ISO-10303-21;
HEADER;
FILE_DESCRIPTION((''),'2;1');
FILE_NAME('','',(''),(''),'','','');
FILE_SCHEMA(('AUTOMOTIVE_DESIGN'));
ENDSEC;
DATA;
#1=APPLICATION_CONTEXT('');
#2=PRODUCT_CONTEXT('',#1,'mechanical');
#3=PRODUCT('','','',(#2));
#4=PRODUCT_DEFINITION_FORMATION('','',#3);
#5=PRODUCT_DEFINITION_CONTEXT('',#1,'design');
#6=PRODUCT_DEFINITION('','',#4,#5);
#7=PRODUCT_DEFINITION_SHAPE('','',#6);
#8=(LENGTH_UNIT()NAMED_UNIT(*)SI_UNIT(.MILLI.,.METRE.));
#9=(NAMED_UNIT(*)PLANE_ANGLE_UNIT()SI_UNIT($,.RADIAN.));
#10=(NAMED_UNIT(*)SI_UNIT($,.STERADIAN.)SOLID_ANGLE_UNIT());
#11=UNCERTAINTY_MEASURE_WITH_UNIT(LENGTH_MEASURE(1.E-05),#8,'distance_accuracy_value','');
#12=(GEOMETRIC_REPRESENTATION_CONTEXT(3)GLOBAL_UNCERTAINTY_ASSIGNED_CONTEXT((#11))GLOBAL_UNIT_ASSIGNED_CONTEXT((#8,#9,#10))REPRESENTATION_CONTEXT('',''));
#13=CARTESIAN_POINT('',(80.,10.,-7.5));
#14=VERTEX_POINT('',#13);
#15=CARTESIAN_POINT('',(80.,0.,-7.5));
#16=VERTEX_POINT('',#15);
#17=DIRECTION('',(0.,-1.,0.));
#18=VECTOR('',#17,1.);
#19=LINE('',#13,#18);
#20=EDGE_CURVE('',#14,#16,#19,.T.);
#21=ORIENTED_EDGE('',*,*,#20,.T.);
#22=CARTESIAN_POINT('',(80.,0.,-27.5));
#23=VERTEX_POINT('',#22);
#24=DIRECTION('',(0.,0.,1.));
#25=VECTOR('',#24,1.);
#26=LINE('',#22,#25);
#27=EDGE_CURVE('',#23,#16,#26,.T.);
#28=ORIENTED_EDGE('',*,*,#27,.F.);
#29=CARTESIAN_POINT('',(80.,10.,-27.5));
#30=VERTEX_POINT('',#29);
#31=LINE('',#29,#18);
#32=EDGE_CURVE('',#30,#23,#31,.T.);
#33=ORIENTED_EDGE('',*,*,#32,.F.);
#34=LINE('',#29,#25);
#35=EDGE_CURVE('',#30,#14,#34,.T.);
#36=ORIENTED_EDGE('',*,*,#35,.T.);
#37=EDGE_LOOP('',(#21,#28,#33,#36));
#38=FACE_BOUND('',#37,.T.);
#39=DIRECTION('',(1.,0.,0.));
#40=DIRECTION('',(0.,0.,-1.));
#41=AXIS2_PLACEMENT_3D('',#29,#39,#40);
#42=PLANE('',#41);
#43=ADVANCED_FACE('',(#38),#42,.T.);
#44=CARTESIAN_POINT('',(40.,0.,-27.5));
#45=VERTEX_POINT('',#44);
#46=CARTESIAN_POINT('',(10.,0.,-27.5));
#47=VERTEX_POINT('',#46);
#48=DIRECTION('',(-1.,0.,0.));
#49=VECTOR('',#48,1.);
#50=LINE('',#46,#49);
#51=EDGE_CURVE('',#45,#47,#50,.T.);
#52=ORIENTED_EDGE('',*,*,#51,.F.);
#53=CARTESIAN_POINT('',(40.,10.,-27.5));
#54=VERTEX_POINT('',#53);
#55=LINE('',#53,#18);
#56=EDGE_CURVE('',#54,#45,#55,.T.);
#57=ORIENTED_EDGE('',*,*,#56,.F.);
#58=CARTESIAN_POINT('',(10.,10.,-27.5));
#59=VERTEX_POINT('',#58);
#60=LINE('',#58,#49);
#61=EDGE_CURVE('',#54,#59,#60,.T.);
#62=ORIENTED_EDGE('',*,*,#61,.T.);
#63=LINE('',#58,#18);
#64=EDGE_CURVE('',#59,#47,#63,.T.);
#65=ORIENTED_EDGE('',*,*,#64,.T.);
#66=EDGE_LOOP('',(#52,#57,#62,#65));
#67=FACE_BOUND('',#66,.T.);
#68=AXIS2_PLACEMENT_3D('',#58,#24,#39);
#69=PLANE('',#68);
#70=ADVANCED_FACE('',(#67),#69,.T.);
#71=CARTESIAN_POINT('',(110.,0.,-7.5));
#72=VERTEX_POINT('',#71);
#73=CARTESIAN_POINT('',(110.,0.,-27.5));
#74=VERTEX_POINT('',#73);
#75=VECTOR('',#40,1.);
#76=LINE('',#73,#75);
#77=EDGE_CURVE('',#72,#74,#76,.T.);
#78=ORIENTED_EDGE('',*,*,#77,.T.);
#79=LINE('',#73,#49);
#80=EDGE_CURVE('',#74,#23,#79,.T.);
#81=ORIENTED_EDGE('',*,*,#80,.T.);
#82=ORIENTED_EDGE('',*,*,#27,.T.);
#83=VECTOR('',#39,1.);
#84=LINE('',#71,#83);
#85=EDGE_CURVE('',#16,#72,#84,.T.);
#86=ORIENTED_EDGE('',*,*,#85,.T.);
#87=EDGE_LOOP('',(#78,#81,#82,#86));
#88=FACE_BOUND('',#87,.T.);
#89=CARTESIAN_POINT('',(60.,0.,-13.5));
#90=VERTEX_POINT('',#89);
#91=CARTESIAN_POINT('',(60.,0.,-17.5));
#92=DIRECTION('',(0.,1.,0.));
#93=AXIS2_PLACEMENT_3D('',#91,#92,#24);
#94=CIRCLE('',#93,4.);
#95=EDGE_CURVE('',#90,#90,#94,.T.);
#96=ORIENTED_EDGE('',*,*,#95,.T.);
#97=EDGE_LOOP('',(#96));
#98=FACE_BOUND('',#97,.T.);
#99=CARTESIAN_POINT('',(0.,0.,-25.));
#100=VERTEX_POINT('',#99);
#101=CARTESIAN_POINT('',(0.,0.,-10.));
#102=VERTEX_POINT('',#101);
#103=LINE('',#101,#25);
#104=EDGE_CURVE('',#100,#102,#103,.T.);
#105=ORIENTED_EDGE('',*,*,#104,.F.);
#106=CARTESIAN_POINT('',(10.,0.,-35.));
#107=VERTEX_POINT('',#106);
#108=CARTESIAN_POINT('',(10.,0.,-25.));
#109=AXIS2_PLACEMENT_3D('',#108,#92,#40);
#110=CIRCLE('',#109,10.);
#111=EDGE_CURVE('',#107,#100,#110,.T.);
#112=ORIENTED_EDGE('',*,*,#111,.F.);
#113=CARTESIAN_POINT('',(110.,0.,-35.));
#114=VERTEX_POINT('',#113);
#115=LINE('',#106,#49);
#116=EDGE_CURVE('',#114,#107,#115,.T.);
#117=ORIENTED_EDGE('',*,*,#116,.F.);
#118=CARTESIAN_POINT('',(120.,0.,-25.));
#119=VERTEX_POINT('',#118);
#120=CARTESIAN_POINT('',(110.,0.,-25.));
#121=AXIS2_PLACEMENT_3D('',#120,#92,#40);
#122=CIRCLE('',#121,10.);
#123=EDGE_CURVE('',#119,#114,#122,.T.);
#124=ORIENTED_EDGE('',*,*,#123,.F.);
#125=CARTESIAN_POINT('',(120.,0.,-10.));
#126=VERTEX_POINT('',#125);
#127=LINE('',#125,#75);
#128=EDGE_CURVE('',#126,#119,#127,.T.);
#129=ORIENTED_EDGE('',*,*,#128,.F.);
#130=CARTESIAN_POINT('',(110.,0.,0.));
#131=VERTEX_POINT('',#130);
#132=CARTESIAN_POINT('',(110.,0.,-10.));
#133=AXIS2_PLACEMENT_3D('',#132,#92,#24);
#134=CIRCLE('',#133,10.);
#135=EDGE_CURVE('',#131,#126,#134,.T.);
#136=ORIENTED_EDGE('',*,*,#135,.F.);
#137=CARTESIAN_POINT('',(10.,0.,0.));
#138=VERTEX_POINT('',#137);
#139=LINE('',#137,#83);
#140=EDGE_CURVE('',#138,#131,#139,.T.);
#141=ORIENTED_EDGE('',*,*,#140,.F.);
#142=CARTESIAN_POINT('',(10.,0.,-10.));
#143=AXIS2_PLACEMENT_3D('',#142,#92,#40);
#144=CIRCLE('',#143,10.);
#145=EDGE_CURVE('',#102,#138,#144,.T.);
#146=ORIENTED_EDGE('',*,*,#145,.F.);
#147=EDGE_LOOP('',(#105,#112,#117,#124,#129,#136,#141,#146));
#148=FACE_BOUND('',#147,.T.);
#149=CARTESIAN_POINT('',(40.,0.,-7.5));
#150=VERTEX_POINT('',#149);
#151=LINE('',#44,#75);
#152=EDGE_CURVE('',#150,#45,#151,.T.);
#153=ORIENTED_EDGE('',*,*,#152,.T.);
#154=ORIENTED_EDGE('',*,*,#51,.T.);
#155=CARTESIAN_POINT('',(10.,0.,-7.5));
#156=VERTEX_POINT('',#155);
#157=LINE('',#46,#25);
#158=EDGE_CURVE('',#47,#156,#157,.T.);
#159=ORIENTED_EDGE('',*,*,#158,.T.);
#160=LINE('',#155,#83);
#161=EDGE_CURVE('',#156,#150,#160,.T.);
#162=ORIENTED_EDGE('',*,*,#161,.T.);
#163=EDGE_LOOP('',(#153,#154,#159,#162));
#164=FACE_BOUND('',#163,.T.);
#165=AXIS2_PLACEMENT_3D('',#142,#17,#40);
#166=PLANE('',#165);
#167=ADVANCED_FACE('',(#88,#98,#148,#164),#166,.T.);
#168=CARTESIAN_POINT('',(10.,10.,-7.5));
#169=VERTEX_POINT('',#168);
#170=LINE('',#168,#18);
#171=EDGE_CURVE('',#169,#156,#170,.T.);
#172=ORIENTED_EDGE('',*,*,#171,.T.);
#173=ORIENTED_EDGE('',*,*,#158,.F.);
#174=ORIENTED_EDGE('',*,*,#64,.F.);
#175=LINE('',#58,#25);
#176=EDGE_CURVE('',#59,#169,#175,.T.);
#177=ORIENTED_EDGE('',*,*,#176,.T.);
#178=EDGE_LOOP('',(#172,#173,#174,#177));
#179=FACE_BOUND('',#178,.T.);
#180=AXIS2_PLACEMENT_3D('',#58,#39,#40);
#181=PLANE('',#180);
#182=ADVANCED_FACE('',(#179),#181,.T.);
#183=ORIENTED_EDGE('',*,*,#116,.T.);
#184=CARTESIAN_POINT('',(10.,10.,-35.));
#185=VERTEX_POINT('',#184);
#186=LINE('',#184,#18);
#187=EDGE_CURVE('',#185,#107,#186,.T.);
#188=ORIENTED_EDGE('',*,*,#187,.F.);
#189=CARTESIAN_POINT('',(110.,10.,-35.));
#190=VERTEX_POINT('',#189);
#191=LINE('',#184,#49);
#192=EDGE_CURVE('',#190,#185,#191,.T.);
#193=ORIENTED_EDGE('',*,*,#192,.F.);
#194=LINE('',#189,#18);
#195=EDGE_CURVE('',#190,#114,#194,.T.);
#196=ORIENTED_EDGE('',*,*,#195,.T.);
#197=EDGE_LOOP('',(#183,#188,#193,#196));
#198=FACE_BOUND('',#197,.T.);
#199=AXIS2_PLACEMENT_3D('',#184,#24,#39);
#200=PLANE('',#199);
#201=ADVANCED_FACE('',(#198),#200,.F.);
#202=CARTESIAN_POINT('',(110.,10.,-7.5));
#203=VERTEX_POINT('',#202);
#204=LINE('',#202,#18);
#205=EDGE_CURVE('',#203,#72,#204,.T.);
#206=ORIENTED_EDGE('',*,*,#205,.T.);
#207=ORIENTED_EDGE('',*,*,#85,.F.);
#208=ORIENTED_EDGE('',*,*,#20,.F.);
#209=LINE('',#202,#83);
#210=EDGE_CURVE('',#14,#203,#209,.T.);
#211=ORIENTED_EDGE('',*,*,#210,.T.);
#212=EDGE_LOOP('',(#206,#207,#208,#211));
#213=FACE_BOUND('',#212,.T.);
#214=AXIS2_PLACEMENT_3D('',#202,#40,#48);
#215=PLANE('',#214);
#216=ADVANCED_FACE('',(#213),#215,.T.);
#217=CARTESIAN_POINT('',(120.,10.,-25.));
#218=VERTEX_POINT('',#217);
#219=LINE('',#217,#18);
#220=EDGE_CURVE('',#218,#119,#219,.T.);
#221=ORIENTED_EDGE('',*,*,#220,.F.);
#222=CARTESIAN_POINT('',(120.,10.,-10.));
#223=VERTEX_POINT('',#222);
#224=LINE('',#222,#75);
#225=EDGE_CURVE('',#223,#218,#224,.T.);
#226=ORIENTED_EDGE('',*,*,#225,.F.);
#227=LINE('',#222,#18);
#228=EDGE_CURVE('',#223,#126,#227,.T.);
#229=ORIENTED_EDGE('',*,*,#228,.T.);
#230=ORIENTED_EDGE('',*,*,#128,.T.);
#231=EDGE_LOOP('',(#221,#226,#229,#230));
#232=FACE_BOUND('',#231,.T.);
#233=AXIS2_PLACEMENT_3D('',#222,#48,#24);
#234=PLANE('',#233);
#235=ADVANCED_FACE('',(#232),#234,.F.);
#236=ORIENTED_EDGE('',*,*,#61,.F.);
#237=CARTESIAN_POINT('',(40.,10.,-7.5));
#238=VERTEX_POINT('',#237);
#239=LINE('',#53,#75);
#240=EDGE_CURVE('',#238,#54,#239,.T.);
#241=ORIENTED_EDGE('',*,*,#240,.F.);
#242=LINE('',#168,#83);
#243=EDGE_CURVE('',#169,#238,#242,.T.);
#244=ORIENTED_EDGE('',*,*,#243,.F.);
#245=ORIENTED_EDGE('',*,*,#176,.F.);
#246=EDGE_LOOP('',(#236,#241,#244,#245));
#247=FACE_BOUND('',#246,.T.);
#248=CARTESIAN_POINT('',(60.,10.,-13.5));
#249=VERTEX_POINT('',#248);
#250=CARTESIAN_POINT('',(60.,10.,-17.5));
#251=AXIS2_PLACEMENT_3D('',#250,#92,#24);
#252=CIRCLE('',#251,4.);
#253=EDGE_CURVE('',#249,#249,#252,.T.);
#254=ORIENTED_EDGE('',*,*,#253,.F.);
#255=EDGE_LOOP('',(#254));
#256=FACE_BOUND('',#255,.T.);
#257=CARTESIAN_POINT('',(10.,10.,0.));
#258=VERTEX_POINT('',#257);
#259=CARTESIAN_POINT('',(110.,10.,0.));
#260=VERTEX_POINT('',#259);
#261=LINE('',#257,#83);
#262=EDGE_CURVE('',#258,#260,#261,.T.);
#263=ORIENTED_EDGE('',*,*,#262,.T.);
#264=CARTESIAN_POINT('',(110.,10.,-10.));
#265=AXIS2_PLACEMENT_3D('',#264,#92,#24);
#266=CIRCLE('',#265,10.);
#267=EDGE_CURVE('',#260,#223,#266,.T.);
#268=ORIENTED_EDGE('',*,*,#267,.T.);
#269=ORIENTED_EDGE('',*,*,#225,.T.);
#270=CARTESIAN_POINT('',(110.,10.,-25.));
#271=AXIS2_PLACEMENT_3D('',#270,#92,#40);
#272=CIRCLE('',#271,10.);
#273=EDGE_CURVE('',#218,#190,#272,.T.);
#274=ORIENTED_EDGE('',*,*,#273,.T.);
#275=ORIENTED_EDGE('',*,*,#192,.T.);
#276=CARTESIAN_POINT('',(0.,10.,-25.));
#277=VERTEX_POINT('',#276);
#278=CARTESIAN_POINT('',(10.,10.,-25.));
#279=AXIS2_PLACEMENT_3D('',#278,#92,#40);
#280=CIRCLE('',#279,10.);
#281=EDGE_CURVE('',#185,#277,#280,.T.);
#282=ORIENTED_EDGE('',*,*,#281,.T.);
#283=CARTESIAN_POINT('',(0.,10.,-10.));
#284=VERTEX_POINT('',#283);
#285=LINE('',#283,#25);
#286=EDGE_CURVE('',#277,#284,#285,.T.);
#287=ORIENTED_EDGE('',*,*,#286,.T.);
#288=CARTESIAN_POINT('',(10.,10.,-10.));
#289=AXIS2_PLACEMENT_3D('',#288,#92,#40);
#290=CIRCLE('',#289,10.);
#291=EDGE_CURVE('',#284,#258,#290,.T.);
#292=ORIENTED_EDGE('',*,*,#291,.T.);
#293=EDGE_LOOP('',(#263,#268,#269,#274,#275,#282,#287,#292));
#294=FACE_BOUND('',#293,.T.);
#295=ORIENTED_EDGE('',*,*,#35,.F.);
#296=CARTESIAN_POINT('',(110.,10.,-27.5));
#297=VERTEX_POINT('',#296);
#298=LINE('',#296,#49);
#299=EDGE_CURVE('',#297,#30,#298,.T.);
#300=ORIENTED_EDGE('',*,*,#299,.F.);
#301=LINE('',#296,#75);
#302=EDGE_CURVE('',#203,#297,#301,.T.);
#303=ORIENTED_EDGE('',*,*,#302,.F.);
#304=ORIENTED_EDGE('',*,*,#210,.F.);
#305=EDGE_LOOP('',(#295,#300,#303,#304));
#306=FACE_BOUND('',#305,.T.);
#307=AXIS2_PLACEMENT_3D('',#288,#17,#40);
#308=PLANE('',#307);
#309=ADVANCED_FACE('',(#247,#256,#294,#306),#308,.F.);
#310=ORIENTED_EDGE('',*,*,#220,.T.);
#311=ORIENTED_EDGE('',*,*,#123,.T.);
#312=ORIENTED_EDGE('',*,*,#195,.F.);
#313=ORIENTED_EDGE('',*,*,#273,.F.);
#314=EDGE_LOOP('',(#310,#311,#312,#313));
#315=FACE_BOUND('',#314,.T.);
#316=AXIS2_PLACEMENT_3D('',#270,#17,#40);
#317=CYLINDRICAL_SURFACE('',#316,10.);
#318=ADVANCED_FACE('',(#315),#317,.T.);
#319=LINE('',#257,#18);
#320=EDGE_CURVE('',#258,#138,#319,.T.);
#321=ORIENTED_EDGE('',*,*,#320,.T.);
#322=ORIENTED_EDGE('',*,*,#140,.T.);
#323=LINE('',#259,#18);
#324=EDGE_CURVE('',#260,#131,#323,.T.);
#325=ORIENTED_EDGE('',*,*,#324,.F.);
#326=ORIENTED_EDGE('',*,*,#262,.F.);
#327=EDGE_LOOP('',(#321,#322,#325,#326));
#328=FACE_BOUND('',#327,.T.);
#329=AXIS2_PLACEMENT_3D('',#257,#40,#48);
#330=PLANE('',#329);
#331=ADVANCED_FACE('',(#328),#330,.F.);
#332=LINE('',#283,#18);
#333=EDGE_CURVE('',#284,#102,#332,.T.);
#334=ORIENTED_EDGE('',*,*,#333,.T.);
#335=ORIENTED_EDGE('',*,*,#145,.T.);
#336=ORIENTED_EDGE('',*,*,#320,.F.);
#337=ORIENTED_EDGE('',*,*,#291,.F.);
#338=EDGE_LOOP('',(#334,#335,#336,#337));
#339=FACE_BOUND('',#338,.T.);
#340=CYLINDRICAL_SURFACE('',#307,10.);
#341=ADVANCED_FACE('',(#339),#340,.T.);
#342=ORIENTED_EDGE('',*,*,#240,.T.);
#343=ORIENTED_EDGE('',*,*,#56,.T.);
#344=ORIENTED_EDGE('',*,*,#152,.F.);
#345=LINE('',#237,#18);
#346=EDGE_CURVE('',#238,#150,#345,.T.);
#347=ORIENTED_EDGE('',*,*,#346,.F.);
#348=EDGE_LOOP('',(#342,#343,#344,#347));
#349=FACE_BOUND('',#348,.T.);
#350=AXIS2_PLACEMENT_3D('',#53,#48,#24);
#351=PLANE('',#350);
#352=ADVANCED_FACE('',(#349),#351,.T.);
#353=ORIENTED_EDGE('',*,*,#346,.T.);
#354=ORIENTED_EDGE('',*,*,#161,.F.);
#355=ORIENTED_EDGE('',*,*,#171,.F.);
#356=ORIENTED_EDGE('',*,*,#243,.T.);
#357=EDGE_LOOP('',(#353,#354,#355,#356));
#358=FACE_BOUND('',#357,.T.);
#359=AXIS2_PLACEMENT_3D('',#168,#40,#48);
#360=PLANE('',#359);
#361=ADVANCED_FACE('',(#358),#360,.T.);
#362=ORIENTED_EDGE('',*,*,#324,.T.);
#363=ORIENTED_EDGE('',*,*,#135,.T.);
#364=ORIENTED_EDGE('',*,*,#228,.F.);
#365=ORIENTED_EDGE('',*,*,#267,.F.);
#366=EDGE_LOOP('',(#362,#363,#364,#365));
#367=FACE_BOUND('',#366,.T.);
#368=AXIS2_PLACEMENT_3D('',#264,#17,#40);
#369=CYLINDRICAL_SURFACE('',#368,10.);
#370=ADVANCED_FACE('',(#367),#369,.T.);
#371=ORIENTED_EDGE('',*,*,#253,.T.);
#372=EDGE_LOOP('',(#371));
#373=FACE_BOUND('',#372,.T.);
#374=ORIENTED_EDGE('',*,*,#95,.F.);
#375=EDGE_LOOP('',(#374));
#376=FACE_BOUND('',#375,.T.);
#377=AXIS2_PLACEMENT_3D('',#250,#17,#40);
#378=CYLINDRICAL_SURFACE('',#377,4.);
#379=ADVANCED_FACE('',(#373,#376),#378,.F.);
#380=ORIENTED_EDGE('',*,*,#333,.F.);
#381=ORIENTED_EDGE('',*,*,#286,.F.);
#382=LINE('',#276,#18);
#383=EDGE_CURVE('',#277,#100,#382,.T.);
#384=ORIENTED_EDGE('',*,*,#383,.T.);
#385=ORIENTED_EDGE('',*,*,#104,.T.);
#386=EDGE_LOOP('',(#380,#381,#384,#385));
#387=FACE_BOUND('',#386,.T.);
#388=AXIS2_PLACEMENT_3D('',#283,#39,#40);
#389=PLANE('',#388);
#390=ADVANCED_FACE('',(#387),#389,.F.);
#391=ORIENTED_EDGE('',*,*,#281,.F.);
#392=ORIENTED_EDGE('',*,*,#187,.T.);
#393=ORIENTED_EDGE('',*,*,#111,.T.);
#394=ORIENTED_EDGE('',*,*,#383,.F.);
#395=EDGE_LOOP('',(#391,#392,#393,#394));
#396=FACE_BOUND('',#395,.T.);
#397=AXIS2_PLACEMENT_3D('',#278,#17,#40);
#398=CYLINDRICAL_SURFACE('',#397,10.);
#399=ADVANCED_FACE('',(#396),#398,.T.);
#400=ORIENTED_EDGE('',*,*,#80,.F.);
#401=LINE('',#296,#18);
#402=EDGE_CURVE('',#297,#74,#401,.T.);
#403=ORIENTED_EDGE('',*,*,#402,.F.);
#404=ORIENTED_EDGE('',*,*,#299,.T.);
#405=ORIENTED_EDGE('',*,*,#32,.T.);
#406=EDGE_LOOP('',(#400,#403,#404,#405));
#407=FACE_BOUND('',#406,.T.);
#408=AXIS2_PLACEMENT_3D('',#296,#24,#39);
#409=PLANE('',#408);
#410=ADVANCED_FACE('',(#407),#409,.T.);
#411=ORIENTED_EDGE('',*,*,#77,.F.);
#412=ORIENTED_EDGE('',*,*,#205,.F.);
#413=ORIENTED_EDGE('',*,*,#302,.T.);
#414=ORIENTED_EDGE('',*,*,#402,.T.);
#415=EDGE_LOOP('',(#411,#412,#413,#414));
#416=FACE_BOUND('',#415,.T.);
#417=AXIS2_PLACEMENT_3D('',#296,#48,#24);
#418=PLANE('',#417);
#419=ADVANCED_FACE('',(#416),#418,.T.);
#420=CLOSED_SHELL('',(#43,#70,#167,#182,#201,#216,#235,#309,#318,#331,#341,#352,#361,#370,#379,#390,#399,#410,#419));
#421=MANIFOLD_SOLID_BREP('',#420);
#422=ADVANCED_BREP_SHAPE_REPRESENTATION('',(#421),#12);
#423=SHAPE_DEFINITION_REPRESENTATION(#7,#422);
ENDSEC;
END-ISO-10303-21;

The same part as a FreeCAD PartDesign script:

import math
import FreeCAD as App
import Part
import Sketcher
Q = App.Units.Quantity

doc = App.newDocument("Part")
body = doc.addObject("PartDesign::Body", "Body")

# Sketch on XZ plane
sketch1 = body.newObject("Sketcher::SketchObject", "Sketch")
sketch1.AttachmentSupport = (doc.getObject("XZ_Plane"), [""])
sketch1.MapMode = "FlatFace"
sketch1.addGeometry([
    Part.LineSegment(App.Vector(10, 0, 0), App.Vector(110, 0, 0)),  # 0
    Part.ArcOfCircle(Part.Circle(App.Vector(110, -10, 0), App.Vector(0, 0, 1), 10), math.radians(0), math.radians(90)),  # 1
    Part.LineSegment(App.Vector(120, -10, 0), App.Vector(120, -25, 0)),  # 2
    Part.ArcOfCircle(Part.Circle(App.Vector(110, -25, 0), App.Vector(0, 0, 1), 10), math.radians(-90), math.radians(0)),  # 3
    Part.LineSegment(App.Vector(110, -35, 0), App.Vector(10, -35, 0)),  # 4
    Part.ArcOfCircle(Part.Circle(App.Vector(10, -25, 0), App.Vector(0, 0, 1), 10), math.radians(180), math.radians(270)),  # 5
    Part.LineSegment(App.Vector(0, -25, 0), App.Vector(0, -10, 0)),  # 6
    Part.ArcOfCircle(Part.Circle(App.Vector(10, -10, 0), App.Vector(0, 0, 1), 10), math.radians(90), math.radians(180)),  # 7
    Part.LineSegment(App.Vector(40, -7.5, 0), App.Vector(10, -7.5, 0)),  # 8
    Part.LineSegment(App.Vector(10, -7.5, 0), App.Vector(10, -27.5, 0)),  # 9
    Part.LineSegment(App.Vector(10, -27.5, 0), App.Vector(40, -27.5, 0)),  # 10
    Part.LineSegment(App.Vector(40, -27.5, 0), App.Vector(40, -7.5, 0)),  # 11
    Part.Circle(App.Vector(60, -17.5, 0), App.Vector(0, 0, 1), 4),  # 12
    Part.LineSegment(App.Vector(110, -7.5, 0), App.Vector(80, -7.5, 0)),  # 13
    Part.LineSegment(App.Vector(80, -7.5, 0), App.Vector(80, -27.5, 0)),  # 14
    Part.LineSegment(App.Vector(80, -27.5, 0), App.Vector(110, -27.5, 0)),  # 15
    Part.LineSegment(App.Vector(110, -27.5, 0), App.Vector(110, -7.5, 0)),  # 16
], False)
sketch1.addConstraint([
    Sketcher.Constraint("Tangent", 0, 2, 1, 2),
    Sketcher.Constraint("Tangent", 1, 1, 2, 1),
    Sketcher.Constraint("Tangent", 2, 2, 3, 2),
    Sketcher.Constraint("Tangent", 3, 1, 4, 1),
    Sketcher.Constraint("Tangent", 4, 2, 5, 2),
    Sketcher.Constraint("Tangent", 5, 1, 6, 1),
    Sketcher.Constraint("Tangent", 6, 2, 7, 2),
    Sketcher.Constraint("Tangent", 7, 1, 0, 1),
    Sketcher.Constraint("Coincident", 8, 2, 9, 1),
    Sketcher.Constraint("Coincident", 9, 2, 10, 1),
    Sketcher.Constraint("Coincident", 10, 2, 11, 1),
    Sketcher.Constraint("Coincident", 11, 2, 8, 1),
    Sketcher.Constraint("Coincident", 13, 2, 14, 1),
    Sketcher.Constraint("Coincident", 14, 2, 15, 1),
    Sketcher.Constraint("Coincident", 15, 2, 16, 1),
    Sketcher.Constraint("Coincident", 16, 2, 13, 1),
    Sketcher.Constraint("Horizontal", 0),
    Sketcher.Constraint("Vertical", 2),
    Sketcher.Constraint("Horizontal", 4),
    Sketcher.Constraint("Vertical", 6),
    Sketcher.Constraint("Horizontal", 8),
    Sketcher.Constraint("Vertical", 9),
    Sketcher.Constraint("Horizontal", 10),
    Sketcher.Constraint("Vertical", 11),
    Sketcher.Constraint("Horizontal", 13),
    Sketcher.Constraint("Vertical", 14),
    Sketcher.Constraint("Horizontal", 15),
    Sketcher.Constraint("Vertical", 16),
    Sketcher.Constraint("Equal", 1, 3),
    Sketcher.Constraint("Equal", 3, 5),
    Sketcher.Constraint("Equal", 5, 7),
    Sketcher.Constraint("PointOnObject", 0, 2, -1),
    Sketcher.Constraint("PointOnObject", 5, 1, -2),
    Sketcher.Constraint("Horizontal", 11, 2, 13, 2),
    Sketcher.Constraint("Horizontal", 10, 2, 14, 2),
    Sketcher.Constraint("Vertical", 7, 1, 8, 2),
    Sketcher.Constraint("Vertical", 3, 1, 15, 2),
    Sketcher.Constraint("Equal", 10, 13),
    Sketcher.Constraint("Diameter", 12, Q("8 mm")),
    Sketcher.Constraint("Radius", 1, Q("10 mm")),
    Sketcher.Constraint("DistanceX", 0, 1, 0, 2, Q("100 mm")),
    Sketcher.Constraint("DistanceX", 8, 2, 8, 1, Q("30 mm")),
    Sketcher.Constraint("DistanceY", 2, 2, 2, 1, Q("15 mm")),
    Sketcher.Constraint("DistanceY", 9, 2, 9, 1, Q("20 mm")),
    Sketcher.Constraint("DistanceX", -1, 1, 12, 3, Q("60 mm")),
    Sketcher.Constraint("DistanceY", 10, 2, 12, 3, Q("10 mm")),
    Sketcher.Constraint("DistanceY", 12, 3, -1, 1, Q("17.5 mm")),
])
pad1 = body.newObject("PartDesign::Pad", "Pad")
pad1.Profile = sketch1
pad1.Length = 10
pad1.Reversed = True

doc.recompute()
